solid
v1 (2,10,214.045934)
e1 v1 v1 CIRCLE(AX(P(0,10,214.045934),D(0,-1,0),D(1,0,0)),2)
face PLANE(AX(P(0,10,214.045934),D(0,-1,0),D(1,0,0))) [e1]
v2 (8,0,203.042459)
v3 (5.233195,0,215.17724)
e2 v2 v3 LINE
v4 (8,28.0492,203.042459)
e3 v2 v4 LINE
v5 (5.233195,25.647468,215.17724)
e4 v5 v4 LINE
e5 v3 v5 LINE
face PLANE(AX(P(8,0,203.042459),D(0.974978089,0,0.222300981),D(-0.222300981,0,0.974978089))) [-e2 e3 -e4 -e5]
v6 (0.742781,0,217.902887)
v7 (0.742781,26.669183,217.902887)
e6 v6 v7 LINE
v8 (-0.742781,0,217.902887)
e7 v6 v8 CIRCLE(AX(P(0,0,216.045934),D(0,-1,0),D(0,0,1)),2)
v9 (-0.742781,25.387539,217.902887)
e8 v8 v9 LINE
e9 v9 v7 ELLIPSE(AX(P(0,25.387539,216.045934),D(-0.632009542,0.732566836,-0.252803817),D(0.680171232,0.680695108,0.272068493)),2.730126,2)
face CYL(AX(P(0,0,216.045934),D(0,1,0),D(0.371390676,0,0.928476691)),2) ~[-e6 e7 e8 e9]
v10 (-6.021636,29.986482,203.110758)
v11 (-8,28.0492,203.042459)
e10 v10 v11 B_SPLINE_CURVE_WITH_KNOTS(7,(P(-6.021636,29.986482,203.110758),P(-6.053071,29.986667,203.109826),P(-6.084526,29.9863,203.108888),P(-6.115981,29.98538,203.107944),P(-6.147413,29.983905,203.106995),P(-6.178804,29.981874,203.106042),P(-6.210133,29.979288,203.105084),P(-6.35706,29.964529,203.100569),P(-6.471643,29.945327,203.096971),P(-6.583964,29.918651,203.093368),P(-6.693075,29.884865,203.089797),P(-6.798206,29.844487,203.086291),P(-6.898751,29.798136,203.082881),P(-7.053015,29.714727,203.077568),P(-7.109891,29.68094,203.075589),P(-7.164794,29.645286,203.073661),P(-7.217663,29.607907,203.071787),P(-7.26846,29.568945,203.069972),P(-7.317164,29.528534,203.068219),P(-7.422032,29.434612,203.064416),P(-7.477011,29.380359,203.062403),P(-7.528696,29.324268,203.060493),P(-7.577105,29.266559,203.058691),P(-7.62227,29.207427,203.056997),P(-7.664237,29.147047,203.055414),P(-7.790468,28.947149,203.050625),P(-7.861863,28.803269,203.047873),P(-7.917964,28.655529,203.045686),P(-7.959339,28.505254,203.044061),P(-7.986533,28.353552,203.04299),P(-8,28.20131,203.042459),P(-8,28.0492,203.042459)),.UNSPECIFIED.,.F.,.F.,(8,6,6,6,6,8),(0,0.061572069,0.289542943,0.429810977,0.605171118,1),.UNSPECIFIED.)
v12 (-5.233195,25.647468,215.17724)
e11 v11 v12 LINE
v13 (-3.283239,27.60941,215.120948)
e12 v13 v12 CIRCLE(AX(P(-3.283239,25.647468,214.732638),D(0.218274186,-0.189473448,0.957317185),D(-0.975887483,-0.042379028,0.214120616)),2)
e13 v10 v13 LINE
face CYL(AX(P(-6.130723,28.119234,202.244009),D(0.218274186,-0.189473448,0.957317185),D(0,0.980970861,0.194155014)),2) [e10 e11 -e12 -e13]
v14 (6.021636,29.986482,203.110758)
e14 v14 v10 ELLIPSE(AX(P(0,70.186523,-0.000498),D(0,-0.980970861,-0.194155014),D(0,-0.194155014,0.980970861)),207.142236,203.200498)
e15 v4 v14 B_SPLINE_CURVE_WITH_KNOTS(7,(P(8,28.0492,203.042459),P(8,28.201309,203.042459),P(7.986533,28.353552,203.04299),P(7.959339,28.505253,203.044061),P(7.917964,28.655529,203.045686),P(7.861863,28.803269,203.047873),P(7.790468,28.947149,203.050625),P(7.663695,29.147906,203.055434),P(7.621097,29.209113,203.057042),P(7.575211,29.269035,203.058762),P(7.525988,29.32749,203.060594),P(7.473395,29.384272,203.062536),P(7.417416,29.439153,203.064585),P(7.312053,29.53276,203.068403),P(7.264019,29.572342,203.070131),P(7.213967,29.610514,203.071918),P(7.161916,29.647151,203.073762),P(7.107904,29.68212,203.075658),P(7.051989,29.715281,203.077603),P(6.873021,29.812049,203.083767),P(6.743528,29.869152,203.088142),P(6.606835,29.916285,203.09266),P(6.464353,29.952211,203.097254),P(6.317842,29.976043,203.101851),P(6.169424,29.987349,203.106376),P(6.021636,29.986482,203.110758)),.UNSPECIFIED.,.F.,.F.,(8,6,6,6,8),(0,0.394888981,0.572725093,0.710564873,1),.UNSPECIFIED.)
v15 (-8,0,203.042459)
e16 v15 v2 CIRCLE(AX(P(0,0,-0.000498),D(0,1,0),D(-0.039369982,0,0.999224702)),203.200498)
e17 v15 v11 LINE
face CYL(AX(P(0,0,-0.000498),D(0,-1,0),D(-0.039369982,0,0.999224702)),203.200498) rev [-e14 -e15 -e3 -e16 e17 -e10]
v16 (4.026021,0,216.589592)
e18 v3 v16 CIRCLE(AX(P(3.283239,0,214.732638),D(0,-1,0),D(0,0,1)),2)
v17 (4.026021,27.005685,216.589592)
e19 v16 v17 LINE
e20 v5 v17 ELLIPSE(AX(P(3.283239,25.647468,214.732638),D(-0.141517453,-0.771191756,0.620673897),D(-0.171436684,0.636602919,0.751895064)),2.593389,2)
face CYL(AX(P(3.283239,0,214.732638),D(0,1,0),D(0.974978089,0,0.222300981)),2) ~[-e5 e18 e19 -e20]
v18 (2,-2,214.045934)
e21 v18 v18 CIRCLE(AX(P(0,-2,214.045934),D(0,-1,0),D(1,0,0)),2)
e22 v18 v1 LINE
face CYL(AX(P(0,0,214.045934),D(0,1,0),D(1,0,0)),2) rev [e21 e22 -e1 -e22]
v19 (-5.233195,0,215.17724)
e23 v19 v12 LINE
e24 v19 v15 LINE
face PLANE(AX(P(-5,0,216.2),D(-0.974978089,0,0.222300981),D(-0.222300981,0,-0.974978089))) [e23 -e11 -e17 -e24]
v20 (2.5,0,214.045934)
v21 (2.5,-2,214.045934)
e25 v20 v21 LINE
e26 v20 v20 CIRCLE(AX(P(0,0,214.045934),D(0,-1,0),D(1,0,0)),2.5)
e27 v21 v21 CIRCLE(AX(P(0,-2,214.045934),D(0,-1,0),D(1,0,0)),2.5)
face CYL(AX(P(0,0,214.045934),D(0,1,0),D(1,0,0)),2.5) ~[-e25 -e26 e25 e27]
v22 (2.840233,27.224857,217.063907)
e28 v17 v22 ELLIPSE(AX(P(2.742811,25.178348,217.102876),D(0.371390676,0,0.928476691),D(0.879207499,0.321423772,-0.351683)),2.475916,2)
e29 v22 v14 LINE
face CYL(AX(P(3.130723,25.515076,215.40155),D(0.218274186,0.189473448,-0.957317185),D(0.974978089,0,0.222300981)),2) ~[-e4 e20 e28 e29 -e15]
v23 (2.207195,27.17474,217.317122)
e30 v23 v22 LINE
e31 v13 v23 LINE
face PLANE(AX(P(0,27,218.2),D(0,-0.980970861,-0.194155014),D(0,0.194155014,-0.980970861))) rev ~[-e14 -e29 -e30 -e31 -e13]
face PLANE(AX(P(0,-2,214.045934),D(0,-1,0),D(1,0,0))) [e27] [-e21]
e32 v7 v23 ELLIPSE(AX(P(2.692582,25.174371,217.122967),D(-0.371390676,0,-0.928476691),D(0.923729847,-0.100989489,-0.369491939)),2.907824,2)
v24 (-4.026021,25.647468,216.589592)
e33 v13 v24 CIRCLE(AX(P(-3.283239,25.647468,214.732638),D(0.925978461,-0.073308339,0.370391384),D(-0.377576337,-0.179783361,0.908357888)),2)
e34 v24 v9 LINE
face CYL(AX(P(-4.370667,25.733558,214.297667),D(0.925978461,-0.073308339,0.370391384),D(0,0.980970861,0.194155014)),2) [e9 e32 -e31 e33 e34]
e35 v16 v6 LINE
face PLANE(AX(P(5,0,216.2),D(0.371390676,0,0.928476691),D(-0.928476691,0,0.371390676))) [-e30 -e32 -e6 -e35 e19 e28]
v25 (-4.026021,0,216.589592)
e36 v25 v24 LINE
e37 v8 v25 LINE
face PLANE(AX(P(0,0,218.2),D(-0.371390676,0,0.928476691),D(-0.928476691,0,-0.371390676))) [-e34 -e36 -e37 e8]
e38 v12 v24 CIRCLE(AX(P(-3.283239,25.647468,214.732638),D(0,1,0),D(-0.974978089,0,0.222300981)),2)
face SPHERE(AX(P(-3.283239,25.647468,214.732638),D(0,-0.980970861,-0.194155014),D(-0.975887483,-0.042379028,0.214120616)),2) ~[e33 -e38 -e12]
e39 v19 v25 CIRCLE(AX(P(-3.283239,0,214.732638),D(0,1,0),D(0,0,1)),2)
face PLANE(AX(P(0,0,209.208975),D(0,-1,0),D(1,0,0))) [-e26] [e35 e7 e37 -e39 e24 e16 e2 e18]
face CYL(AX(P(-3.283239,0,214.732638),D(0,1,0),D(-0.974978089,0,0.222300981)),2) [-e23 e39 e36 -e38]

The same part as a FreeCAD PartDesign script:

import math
import FreeCAD as App
import Part
import Sketcher
from FreeCAD import Vector


def edges_at(feature, points):
    """Names of the edges that pass closest to the given points."""
    edges = feature.Shape.Edges
    near = lambda p: min(range(len(edges)), key=lambda i: edges[i].distToShape(Part.Vertex(*p))[0])
    return sorted({f"Edge{near(p) + 1}" for p in points})


def add_polygon(sketch, points):
    """Adds a closed chain of lines whose ends are joined by coincident constraints."""
    first, n = sketch.GeometryCount, len(points)
    for a, b in zip(points, points[1:] + points[:1]):
        sketch.addGeometry(Part.LineSegment(App.Vector(*a, 0), App.Vector(*b, 0)), False)
    for i in range(n):
        sketch.addConstraint(Sketcher.Constraint("Coincident", first + i, 2, first + (i + 1) % n, 1))

doc = App.newDocument("Part")
params = doc.addObject("Spreadsheet::Sheet", "Params")
for row, (alias, value) in enumerate([
    ("pad1_length", "30 mm"),
    ("sketch2_width", "3 mm"),
    ("pocket1_length", "25 mm"),
    ("fillet_radius", "2 mm"),
    ("sketch3_diameter", "4 mm"),
    ("pocket2_length", "10 mm"),
    ("sketch4_diameter", "5 mm"),
    ("sketch4_diameter2", "4 mm"),
    ("pad2_length", "2 mm"),
], start=1):
    params.set(f"A{row}", alias)
    params.set(f"B{row}", "=" + value)
    params.setAlias(f"B{row}", alias)

body = doc.addObject("PartDesign::Body", "Body")

# Sketch on XZ plane
sketch1 = body.newObject("Sketcher::SketchObject", "Sketch")
sketch1.AttachmentSupport = (doc.getObject("XZ_Plane"), [""])
sketch1.MapMode = "FlatFace"
sketch1.addGeometry([
    Part.ArcOfCircle(Part.Circle(Vector(0, 0, 0), Vector(0, 0, 1), 203), math.radians(87.74), math.radians(92.26)),  # 0
    Part.LineSegment(Vector(8, 203, 0), Vector(5, 216, 0)),  # 1
    Part.LineSegment(Vector(5, 216, 0), Vector(0, 218, 0)),  # 2
    Part.LineSegment(Vector(0, 218, 0), Vector(-5, 216, 0)),  # 3
    Part.LineSegment(Vector(-5, 216, 0), Vector(-8, 203, 0)),  # 4
], False)
sketch1.addConstraint([
    Sketcher.Constraint("Coincident", 0, 1, 1, 1),
    Sketcher.Constraint("Coincident", 1, 2, 2, 1),
    Sketcher.Constraint("Coincident", 2, 2, 3, 1),
    Sketcher.Constraint("Coincident", 3, 2, 4, 1),
    Sketcher.Constraint("Coincident", 4, 2, 0, 2),
    Sketcher.Constraint("Symmetric", 1, 2, 3, 2, -2),
    Sketcher.Constraint("Symmetric", 0, 1, 4, 2, -2),
    Sketcher.Constraint("PointOnObject", 2, 2, -2),
    Sketcher.Constraint("DistanceX", -1, 1, 0, 1, 8.0),
    Sketcher.Constraint("DistanceX", -1, 1, 1, 2, 5.0),
    Sketcher.Constraint("DistanceY", 1, 2, 2, 2, 2.0),
    Sketcher.Constraint("DistanceY", -1, 1, 1, 2, 216.2),
    Sketcher.Constraint("Radius", 0, 203.200498),
    Sketcher.Constraint("DistanceY", -1, 1, 0, 1, 203.042459),
])
pad1 = body.newObject("PartDesign::Pad", "Pad")
pad1.Profile = sketch1
pad1.setExpression("Length", "Params.pad1_length")
pad1.Reversed = True

# Sketch on YZ plane
sketch2 = body.newObject("Sketcher::SketchObject", "Sketch001")
sketch2.AttachmentSupport = (doc.getObject("YZ_Plane"), [""])
sketch2.MapMode = "FlatFace"
add_polygon(sketch2, [(30, 203), (30, 218.2), (27, 218.2)])  # lines 0-2
sketch2.addConstraint([
    Sketcher.Constraint("Vertical", 0),
    Sketcher.Constraint("Horizontal", 1),
    Sketcher.Constraint("DistanceX", 1, 2, 1, 1, 3.0),
    Sketcher.Constraint("DistanceX", -1, 1, 0, 2, 30.0),
    Sketcher.Constraint("DistanceY", -1, 1, 0, 2, 218.2),
    Sketcher.Constraint("DistanceY", 0, 1, 0, 2, 15.157541),
])
sketch2.setExpression("Constraints[5]", "Params.sketch2_width")
pocket1 = body.newObject("PartDesign::Pocket", "Pocket")
pocket1.Profile = sketch2
pocket1.setExpression("Length", "Params.pocket1_length")
pocket1.Midplane = True
doc.recompute()

fillet = body.newObject("PartDesign::Fillet", "Fillet")
fillet.Base = (pocket1, edges_at(pocket1, [
    (5, 13.698, 216.2),
    (0, 13.5, 218.2),
    (-5, 13.698, 216.2),
    (-6.5, 28.698, 209.621),
    (-2.5, 27.198, 217.2),
    (6.5, 28.698, 209.621),
]))
fillet.setExpression("Radius", "Params.fillet_radius")

# Sketch on XZ plane
sketch3 = body.newObject("Sketcher::SketchObject", "Sketch002")
sketch3.AttachmentSupport = (doc.getObject("XZ_Plane"), [""])
sketch3.MapMode = "FlatFace"
sketch3.addGeometry(Part.Circle(Vector(0, 214, 0), Vector(0, 0, 1), 2), False)
sketch3.addConstraint([
    Sketcher.Constraint("PointOnObject", 0, 3, -2),
    Sketcher.Constraint("Diameter", 0, 4.0),
    Sketcher.Constraint("DistanceY", -1, 1, 0, 3, 214.045934),
])
sketch3.setExpression("Constraints[1]", "Params.sketch3_diameter")
pocket2 = body.newObject("PartDesign::Pocket", "Pocket001")
pocket2.Profile = sketch3
pocket2.setExpression("Length", "Params.pocket2_length")

# Sketch on XZ plane
sketch4 = body.newObject("Sketcher::SketchObject", "Sketch003")
sketch4.AttachmentSupport = (doc.getObject("XZ_Plane"), [""])
sketch4.MapMode = "FlatFace"
sketch4.addGeometry([
    Part.Circle(Vector(0, 214, 0), Vector(0, 0, 1), 2.5),
    Part.Circle(Vector(0, 214, 0), Vector(0, 0, 1), 2),
], False)
sketch4.addConstraint([
    Sketcher.Constraint("Coincident", 1, 3, 0, 3),
    Sketcher.Constraint("PointOnObject", 0, 3, -2),
    Sketcher.Constraint("Diameter", 0, 5.0),
    Sketcher.Constraint("Diameter", 1, 4.0),
    Sketcher.Constraint("DistanceY", -1, 1, 0, 3, 214.045934),
])
sketch4.setExpression("Constraints[2]", "Params.sketch4_diameter")
sketch4.setExpression("Constraints[3]", "Params.sketch4_diameter2")
pad2 = body.newObject("PartDesign::Pad", "Pad001")
pad2.Profile = sketch4
pad2.setExpression("Length", "Params.pad2_length")

doc.recompute()
